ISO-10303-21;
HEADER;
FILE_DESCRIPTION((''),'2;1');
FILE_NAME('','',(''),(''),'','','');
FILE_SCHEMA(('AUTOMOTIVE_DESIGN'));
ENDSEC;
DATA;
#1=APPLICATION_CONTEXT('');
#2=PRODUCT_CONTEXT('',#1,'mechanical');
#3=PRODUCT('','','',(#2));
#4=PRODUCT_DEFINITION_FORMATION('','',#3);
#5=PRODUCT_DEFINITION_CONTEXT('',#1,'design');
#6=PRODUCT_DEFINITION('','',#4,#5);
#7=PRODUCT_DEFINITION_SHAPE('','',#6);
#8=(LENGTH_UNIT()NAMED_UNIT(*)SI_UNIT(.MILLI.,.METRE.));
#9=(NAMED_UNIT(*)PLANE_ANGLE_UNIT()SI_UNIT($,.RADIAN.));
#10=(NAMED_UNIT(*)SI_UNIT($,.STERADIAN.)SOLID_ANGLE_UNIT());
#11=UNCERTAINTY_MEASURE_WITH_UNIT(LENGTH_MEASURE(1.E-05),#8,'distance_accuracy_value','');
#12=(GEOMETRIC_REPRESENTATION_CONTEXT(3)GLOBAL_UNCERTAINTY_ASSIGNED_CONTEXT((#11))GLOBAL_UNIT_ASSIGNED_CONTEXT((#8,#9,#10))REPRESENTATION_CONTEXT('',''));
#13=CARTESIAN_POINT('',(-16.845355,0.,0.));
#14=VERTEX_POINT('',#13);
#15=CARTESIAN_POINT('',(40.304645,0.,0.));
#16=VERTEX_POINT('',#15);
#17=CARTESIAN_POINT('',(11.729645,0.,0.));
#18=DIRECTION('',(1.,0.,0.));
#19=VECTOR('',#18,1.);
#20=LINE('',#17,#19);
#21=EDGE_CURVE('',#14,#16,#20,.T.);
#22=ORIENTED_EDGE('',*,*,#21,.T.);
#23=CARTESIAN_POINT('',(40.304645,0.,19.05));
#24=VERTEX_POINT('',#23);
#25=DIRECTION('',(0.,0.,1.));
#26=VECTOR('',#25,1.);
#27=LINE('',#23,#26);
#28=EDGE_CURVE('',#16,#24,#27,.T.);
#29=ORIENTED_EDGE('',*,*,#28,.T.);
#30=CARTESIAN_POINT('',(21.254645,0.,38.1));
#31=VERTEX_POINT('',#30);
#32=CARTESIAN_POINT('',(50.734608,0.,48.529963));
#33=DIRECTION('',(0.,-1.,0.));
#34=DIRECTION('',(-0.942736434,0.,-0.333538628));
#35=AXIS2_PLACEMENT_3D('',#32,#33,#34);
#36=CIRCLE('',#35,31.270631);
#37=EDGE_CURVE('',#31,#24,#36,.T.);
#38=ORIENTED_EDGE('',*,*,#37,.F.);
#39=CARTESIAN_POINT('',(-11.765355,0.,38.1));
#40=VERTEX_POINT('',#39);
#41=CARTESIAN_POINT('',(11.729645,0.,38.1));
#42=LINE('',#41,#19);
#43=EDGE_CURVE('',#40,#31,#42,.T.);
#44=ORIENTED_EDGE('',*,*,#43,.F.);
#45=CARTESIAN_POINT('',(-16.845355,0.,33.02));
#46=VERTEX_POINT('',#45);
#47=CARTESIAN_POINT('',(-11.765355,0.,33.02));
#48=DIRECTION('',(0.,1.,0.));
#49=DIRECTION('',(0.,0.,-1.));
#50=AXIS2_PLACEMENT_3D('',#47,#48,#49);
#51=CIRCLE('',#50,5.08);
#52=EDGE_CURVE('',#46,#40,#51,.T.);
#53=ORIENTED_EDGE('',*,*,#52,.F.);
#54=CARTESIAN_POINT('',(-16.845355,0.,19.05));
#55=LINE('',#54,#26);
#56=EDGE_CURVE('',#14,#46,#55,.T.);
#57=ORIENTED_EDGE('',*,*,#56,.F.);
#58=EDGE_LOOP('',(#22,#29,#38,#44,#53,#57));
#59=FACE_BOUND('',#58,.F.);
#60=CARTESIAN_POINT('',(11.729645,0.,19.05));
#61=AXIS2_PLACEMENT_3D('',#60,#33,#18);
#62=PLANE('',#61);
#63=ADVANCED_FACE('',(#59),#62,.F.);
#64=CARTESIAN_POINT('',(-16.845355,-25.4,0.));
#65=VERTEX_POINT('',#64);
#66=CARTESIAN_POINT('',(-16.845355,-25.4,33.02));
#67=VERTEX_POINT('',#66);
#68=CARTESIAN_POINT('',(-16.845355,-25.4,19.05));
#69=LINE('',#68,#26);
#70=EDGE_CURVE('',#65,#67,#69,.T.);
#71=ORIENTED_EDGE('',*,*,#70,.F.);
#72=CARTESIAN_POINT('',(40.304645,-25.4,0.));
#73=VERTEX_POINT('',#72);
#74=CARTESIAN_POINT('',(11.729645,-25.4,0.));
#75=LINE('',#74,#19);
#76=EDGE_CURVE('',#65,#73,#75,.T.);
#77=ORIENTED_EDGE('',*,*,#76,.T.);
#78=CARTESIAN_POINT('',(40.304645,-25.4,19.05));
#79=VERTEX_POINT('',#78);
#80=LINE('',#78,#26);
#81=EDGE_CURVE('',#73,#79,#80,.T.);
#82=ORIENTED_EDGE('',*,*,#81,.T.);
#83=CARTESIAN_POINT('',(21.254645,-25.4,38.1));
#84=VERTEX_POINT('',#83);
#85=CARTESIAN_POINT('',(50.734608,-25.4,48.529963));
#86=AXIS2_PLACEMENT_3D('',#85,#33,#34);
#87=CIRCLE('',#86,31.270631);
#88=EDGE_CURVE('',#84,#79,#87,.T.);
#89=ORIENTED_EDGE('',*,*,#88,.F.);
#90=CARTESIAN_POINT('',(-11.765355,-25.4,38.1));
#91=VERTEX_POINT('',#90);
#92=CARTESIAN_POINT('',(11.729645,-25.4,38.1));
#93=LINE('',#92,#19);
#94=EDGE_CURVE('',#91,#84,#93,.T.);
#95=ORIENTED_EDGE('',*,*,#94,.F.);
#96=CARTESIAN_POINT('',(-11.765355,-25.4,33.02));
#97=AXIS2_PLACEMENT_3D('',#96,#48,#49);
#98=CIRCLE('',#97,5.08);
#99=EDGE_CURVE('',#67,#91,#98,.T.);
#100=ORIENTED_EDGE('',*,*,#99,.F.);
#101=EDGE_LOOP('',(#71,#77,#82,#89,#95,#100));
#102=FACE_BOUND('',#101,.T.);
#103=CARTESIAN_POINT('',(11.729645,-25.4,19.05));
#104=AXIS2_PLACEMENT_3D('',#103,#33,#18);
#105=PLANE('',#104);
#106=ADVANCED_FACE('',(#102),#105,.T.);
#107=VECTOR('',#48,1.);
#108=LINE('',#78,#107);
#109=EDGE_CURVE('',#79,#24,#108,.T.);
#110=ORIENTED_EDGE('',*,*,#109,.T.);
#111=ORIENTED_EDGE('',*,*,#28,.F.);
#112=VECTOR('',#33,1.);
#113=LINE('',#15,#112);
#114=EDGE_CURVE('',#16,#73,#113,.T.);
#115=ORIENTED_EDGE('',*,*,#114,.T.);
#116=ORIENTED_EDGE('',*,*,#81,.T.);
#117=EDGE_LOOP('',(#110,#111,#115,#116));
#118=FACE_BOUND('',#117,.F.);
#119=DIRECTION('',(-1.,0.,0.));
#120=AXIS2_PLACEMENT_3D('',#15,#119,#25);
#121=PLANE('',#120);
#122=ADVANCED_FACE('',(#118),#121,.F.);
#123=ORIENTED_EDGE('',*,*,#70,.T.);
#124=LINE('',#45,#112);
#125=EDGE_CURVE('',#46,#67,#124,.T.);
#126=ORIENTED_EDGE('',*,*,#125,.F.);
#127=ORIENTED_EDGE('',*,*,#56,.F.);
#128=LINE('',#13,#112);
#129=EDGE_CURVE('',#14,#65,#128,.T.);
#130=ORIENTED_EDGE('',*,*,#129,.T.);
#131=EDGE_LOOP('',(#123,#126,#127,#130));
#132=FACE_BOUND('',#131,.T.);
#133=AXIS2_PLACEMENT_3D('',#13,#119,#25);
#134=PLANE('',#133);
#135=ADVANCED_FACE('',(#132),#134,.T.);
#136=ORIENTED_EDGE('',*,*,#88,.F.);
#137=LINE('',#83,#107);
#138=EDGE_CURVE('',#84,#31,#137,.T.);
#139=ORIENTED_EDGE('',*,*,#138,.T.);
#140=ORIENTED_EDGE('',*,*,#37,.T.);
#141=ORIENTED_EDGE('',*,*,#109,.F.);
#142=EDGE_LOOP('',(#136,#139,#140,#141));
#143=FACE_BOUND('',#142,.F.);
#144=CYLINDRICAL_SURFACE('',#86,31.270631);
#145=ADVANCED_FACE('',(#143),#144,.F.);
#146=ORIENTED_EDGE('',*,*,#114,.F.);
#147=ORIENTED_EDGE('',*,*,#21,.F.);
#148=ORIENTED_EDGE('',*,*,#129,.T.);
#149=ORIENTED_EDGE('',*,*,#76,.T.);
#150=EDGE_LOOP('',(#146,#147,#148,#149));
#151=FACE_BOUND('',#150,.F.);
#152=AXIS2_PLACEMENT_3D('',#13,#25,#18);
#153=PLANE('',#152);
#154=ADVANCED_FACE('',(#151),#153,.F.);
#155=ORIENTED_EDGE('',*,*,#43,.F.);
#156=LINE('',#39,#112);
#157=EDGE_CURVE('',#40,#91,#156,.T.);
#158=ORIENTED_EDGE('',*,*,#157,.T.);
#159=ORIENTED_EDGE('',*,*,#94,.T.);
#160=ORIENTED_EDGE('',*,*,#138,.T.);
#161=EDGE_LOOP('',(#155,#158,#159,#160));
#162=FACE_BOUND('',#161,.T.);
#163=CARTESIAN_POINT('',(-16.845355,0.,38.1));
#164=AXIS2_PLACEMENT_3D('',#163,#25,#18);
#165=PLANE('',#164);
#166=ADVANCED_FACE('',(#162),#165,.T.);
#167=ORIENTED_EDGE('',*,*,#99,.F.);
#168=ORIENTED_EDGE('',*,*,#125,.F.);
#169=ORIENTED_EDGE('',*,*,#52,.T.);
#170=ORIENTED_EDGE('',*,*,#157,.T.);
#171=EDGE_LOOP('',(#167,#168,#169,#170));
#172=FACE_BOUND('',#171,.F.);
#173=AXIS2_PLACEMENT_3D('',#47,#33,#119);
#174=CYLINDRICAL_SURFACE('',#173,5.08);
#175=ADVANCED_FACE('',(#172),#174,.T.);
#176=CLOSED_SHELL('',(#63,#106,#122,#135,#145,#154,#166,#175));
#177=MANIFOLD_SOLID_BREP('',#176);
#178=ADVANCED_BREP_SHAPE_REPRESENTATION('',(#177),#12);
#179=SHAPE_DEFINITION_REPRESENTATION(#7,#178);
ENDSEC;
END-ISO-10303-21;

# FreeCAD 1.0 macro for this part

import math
import FreeCAD as App
import Part
import Sketcher

V = App.Vector
Q = App.Units.Quantity


def edges_at(feature, points):
    """Names of the edges that pass closest to the given points."""
    edges = feature.Shape.Edges
    near = lambda p: min(range(len(edges)), key=lambda i: edges[i].distToShape(Part.Vertex(*p))[0])
    return sorted({f"Edge{near(p) + 1}" for p in points})

doc = App.newDocument("Part")
params = doc.addObject("Spreadsheet::Sheet", "Params")
for row, (alias, value) in enumerate([
    ("sketch1_height", "1.5 in"),
    ("sketch1_width", "2.25 in"),
    ("pad1_length", "1 in"),
    ("sketch2_width", "0.75 in"),
    ("pocket1_length", "1 in"),
    ("fillet_radius", "0.2 in"),
], start=1):
    params.set(f"A{row}", alias)
    params.set(f"B{row}", "=" + value)
    params.setAlias(f"B{row}", alias)

body = doc.addObject("PartDesign::Body", "Body")

# Sketch on XZ plane
sketch1 = doc.addObject("Sketcher::SketchObject", "Sketch")
body.addObject(sketch1)
sketch1.AttachmentSupport = (doc.XZ_Plane, [""])
sketch1.MapMode = "FlatFace"
sketch1.addGeometry([
    Part.LineSegment(V(-17, 38, 0), V(-17, 0, 0)),
    Part.LineSegment(V(-17, 0, 0), V(40, 0, 0)),
    Part.LineSegment(V(40, 0, 0), V(40, 38, 0)),
    Part.LineSegment(V(40, 38, 0), V(-17, 38, 0)),
], False)
sketch1.addConstraint([
    Sketcher.Constraint("Coincident", 0, 2, 1, 1),
    Sketcher.Constraint("Coincident", 1, 2, 2, 1),
    Sketcher.Constraint("Coincident", 2, 2, 3, 1),
    Sketcher.Constraint("Coincident", 3, 2, 0, 1),
    Sketcher.Constraint("Vertical", 0),
    Sketcher.Constraint("Horizontal", 1),
    Sketcher.Constraint("Vertical", 2),
    Sketcher.Constraint("Horizontal", 3),
    Sketcher.Constraint("PointOnObject", 0, 2, -1),
    Sketcher.Constraint("DistanceY", 0, 2, 0, 1, Q("1.5 in")),
    Sketcher.Constraint("DistanceX", 1, 1, 1, 2, Q("2.25 in")),
    Sketcher.Constraint("DistanceX", 0, 2, -1, 1, Q("16.845355 mm")),
])
sketch1.setExpression("Constraints[9]", "Params.sketch1_height")
sketch1.setExpression("Constraints[10]", "Params.sketch1_width")
pad1 = doc.addObject("PartDesign::Pad", "Pad")
body.addObject(pad1)
pad1.Profile = sketch1
pad1.setExpression("Length", "Params.pad1_length")

# Sketch on XZ plane
sketch2 = doc.addObject("Sketcher::SketchObject", "Sketch001")
body.addObject(sketch2)
sketch2.AttachmentSupport = (doc.XZ_Plane, [""])
sketch2.MapMode = "FlatFace"
sketch2.AttachmentOffset = App.Placement(V(0, 0, 1 * 25.4), App.Rotation())
sketch2.addGeometry([
    Part.LineSegment(V(40, 38, 0), V(21, 38, 0)),
    Part.ArcOfCircle(Part.Circle(V(51, 49, 0), V(0, 0, 1), 31), math.radians(-161), math.radians(-109)),
    Part.LineSegment(V(40, 19, 0), V(40, 38, 0)),
], False)
sketch2.addConstraint([
    Sketcher.Constraint("Coincident", 0, 2, 1, 1),
    Sketcher.Constraint("Coincident", 1, 2, 2, 1),
    Sketcher.Constraint("Coincident", 2, 2, 0, 1),
    Sketcher.Constraint("Horizontal", 0),
    Sketcher.Constraint("Vertical", 2),
    Sketcher.Constraint("Equal", 0, 2),
    Sketcher.Constraint("DistanceX", 0, 2, 0, 1, Q("0.75 in")),
    Sketcher.Constraint("DistanceY", -1, 1, 0, 2, Q("1.5 in")),
    Sketcher.Constraint("Radius", 1, Q("31.270631 mm")),
    Sketcher.Constraint("DistanceX", -1, 1, 1, 3, Q("50.734608 mm")),
])
sketch2.setExpression("Constraints[6]", "Params.sketch2_width")
pocket1 = doc.addObject("PartDesign::Pocket", "Pocket")
body.addObject(pocket1)
pocket1.Profile = sketch2
pocket1.setExpression("Length", "Params.pocket1_length")
doc.recompute()

fillet = doc.addObject("PartDesign::Fillet", "Fillet")
body.addObject(fillet)
fillet.Base = (pocket1, edges_at(pocket1, [(-16.845, -12.7, 38.1)]))
fillet.setExpression("Radius", "Params.fillet_radius")

doc.recompute()
